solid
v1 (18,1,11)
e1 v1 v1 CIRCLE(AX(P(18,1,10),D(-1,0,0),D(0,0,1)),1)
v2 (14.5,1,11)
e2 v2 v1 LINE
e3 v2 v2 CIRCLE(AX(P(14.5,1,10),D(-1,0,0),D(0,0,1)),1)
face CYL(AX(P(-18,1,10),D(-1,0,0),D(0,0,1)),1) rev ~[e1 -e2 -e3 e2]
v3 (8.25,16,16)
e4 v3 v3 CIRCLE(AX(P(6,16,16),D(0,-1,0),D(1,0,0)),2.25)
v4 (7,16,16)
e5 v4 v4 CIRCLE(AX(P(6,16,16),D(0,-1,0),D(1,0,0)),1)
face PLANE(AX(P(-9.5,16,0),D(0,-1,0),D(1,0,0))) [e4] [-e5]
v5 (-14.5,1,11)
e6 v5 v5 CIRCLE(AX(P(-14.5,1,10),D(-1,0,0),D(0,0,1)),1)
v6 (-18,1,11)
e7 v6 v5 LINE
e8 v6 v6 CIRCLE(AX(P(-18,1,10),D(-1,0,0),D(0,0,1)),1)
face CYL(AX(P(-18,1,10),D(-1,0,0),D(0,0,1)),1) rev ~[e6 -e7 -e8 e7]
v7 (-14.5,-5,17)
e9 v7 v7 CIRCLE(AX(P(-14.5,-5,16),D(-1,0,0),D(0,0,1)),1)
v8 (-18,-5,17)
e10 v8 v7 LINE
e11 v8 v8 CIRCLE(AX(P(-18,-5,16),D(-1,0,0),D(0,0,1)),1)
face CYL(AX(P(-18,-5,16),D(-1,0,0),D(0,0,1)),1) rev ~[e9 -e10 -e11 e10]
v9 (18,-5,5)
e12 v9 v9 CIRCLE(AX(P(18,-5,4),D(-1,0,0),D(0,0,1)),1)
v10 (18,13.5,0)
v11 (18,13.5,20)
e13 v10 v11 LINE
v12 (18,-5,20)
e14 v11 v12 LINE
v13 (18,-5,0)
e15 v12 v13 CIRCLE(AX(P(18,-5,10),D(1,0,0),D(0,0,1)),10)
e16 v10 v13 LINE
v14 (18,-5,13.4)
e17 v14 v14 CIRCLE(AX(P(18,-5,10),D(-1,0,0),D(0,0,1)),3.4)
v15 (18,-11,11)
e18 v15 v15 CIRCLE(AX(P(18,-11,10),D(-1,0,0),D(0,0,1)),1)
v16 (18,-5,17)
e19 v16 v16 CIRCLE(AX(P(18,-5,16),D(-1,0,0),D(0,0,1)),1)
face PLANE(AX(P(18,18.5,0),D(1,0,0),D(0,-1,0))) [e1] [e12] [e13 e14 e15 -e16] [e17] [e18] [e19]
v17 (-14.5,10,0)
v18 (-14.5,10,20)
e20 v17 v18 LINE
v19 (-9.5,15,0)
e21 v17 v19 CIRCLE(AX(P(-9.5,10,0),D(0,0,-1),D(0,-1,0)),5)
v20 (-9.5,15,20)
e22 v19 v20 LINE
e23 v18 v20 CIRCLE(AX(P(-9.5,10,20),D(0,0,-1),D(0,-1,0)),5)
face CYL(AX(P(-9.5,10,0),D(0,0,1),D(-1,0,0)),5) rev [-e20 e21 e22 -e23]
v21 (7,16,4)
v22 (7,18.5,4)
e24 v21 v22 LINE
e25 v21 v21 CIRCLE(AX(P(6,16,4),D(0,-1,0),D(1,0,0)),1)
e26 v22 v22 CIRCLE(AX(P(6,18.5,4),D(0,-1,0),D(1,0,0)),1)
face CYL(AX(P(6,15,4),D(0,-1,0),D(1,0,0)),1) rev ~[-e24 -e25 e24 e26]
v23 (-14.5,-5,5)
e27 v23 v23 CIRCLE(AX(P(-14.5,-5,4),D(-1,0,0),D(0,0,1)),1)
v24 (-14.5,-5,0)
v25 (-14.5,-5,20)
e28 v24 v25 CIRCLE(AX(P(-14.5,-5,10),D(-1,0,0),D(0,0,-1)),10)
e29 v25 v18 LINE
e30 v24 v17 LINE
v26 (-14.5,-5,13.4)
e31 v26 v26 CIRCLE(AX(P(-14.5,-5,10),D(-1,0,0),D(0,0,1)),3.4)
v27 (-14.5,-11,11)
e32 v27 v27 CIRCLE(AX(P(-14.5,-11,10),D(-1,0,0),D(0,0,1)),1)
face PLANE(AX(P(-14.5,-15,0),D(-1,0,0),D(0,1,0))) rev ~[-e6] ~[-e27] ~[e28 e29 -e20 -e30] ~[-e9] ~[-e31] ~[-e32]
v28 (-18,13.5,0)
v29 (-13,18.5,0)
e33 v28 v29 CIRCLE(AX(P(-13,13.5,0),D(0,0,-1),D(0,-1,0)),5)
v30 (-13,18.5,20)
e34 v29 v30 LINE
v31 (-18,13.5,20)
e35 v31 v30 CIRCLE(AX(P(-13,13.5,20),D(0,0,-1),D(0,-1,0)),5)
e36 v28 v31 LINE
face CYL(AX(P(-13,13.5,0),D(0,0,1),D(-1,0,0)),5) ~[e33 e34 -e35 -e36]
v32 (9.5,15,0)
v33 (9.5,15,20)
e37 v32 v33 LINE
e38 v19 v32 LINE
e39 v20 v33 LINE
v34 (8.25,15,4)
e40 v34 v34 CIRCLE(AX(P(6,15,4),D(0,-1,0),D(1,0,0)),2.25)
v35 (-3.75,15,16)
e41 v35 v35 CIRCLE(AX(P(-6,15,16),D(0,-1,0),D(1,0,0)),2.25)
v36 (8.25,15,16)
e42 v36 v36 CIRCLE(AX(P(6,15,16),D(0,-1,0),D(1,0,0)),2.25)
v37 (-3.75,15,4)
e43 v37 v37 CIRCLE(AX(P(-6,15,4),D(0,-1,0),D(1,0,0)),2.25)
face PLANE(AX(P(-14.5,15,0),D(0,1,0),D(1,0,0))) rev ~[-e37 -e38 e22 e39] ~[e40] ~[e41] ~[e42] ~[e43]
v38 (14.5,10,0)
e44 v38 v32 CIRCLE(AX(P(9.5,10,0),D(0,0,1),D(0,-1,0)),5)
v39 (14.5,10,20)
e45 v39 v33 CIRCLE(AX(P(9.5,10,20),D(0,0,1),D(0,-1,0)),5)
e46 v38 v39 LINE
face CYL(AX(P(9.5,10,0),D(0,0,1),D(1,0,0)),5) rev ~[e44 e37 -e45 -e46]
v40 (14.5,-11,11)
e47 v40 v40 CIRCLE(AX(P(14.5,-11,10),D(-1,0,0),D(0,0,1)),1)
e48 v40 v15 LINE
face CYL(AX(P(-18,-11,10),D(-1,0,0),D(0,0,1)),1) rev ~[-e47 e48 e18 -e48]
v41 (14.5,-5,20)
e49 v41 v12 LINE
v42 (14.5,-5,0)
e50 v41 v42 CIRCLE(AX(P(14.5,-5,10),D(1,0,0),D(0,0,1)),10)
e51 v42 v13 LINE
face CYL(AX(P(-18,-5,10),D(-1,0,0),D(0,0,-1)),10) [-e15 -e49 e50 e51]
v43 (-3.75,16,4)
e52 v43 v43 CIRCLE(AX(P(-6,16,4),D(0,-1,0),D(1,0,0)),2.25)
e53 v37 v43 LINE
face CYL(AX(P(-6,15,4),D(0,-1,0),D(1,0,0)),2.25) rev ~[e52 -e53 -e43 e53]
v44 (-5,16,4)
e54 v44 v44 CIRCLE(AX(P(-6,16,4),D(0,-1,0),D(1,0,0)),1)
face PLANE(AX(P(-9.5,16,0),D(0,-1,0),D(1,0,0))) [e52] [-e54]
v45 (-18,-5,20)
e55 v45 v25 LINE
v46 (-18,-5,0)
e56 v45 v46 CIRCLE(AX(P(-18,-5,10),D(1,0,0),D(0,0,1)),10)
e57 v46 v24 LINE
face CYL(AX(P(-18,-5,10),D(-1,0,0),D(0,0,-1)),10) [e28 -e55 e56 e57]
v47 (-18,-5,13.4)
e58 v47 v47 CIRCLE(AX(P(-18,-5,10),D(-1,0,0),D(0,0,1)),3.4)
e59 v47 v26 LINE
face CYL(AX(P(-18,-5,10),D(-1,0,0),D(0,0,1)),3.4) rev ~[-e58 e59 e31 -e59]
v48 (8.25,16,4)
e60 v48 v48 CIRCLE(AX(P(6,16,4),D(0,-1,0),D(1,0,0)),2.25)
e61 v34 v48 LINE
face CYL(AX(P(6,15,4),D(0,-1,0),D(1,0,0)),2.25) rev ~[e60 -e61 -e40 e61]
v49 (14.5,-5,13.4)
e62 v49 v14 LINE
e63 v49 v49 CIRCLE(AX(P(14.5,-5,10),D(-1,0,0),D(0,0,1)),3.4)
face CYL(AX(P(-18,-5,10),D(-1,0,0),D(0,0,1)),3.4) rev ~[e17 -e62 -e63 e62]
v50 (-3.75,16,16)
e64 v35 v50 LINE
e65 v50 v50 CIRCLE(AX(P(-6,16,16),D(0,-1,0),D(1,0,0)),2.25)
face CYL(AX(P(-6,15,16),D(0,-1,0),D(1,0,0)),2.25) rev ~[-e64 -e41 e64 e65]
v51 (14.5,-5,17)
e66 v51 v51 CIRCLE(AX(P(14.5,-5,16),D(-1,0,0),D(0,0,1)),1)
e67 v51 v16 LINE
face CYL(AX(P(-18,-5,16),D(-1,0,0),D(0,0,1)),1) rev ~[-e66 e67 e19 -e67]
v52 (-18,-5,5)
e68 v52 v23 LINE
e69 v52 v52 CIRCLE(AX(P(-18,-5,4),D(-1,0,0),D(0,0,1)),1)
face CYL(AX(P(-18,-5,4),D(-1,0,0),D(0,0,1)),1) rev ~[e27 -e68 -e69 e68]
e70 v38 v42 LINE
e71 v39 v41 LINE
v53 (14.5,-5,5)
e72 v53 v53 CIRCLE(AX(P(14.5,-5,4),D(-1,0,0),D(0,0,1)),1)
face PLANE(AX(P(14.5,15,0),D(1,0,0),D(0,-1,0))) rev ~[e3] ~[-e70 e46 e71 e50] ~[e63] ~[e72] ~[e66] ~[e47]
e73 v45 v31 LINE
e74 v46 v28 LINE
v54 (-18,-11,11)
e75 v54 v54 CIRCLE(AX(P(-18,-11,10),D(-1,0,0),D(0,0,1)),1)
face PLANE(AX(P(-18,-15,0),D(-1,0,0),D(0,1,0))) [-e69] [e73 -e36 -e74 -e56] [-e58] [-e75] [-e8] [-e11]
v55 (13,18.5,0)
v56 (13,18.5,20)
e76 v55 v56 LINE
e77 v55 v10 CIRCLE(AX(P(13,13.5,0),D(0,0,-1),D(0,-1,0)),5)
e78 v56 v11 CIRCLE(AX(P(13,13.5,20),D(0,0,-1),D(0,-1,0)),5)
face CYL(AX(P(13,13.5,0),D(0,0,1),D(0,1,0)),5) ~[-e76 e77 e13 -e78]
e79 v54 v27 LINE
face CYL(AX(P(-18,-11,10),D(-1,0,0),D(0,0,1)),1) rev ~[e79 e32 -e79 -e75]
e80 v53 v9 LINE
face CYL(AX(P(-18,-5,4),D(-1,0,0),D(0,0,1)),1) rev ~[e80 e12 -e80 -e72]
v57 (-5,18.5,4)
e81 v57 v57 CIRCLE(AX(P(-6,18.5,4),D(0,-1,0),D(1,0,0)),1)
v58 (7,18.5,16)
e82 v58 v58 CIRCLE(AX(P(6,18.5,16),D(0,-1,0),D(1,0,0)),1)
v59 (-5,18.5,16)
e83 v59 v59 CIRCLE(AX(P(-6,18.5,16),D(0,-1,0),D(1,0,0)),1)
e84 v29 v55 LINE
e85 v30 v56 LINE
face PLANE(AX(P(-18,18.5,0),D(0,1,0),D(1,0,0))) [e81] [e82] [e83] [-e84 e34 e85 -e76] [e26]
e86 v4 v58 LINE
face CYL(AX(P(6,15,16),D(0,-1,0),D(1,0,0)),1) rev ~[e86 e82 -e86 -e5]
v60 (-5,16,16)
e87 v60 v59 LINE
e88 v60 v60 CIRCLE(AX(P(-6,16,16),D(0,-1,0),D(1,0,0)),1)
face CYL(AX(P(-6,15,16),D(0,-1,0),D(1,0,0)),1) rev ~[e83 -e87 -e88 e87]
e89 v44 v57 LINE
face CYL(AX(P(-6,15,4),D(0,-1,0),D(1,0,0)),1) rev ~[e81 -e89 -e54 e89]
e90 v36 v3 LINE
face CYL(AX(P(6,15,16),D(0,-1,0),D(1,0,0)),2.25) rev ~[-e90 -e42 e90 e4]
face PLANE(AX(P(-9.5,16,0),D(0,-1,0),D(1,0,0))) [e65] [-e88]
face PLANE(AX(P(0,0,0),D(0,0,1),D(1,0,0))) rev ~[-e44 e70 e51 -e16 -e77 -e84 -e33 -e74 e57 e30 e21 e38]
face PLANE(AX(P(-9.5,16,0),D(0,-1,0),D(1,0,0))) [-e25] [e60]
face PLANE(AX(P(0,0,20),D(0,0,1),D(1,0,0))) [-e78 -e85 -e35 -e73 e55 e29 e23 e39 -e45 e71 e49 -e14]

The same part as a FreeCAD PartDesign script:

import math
import FreeCAD as App
import Part
import Sketcher

V = App.Vector
Q = App.Units.Quantity


def edges_at(feature, points):
    """Names of the edges that pass closest to the given points."""
    edges = feature.Shape.Edges
    near = lambda p: min(range(len(edges)), key=lambda i: edges[i].distToShape(Part.Vertex(*p))[0])
    return sorted({f"Edge{near(p) + 1}" for p in points})

doc = App.newDocument("Part")
body = doc.addObject("PartDesign::Body", "Body")

# Sketch on XY plane
sketch1 = doc.addObject("Sketcher::SketchObject", "Sketch")
body.addObject(sketch1)
sketch1.AttachmentSupport = (doc.XY_Plane, [""])
sketch1.MapMode = "FlatFace"
sketch1.addGeometry([
    Part.LineSegment(V(-18, -15, 0), V(-14.5, -15, 0)),  # 0
    Part.LineSegment(V(-14.5, -15, 0), V(-14.5, 15, 0)),  # 1
    Part.LineSegment(V(-14.5, 15, 0), V(14.5, 15, 0)),  # 2
    Part.LineSegment(V(14.5, 15, 0), V(14.5, -15, 0)),  # 3
    Part.LineSegment(V(14.5, -15, 0), V(18, -15, 0)),  # 4
    Part.LineSegment(V(18, -15, 0), V(18, 18.5, 0)),  # 5
    Part.LineSegment(V(18, 18.5, 0), V(-18, 18.5, 0)),  # 6
    Part.LineSegment(V(-18, 18.5, 0), V(-18, -15, 0)),  # 7
], False)
sketch1.addConstraint([
    Sketcher.Constraint("Coincident", 0, 2, 1, 1),
    Sketcher.Constraint("Coincident", 1, 2, 2, 1),
    Sketcher.Constraint("Coincident", 2, 2, 3, 1),
    Sketcher.Constraint("Coincident", 3, 2, 4, 1),
    Sketcher.Constraint("Coincident", 4, 2, 5, 1),
    Sketcher.Constraint("Coincident", 5, 2, 6, 1),
    Sketcher.Constraint("Coincident", 6, 2, 7, 1),
    Sketcher.Constraint("Coincident", 7, 2, 0, 1),
    Sketcher.Constraint("Horizontal", 0),
    Sketcher.Constraint("Vertical", 1),
    Sketcher.Constraint("Horizontal", 2),
    Sketcher.Constraint("Vertical", 3),
    Sketcher.Constraint("Horizontal", 4),
    Sketcher.Constraint("Vertical", 5),
    Sketcher.Constraint("Horizontal", 6),
    Sketcher.Constraint("Vertical", 7),
    Sketcher.Constraint("Symmetric", 0, 2, 2, 2, -1, 1),
    Sketcher.Constraint("Symmetric", 4, 2, 7, 2, -2),
    Sketcher.Constraint("DistanceX", 2, 1, 2, 2, Q("29 mm")),
    Sketcher.Constraint("DistanceX", 6, 2, 6, 1, Q("36 mm")),
    Sketcher.Constraint("DistanceY", 1, 1, 1, 2, Q("30 mm")),
    Sketcher.Constraint("DistanceY", 5, 1, 5, 2, Q("33.5 mm")),
])
pad1 = doc.addObject("PartDesign::Pad", "Pad")
body.addObject(pad1)
pad1.Profile = sketch1
pad1.Length = 20

# Sketch on YZ plane
sketch2 = doc.addObject("Sketcher::SketchObject", "Sketch001")
body.addObject(sketch2)
sketch2.AttachmentSupport = (doc.YZ_Plane, [""])
sketch2.MapMode = "FlatFace"
sketch2.AttachmentOffset = App.Placement(V(0, 0, -18), App.Rotation())
sketch2.addGeometry([
    Part.ArcOfCircle(Part.Circle(V(-5, 10, 0), V(0, 0, 1), 10), math.radians(90), math.radians(180)),  # 0
    Part.LineSegment(V(-15, 10, 0), V(-15, 20, 0)),  # 1
    Part.LineSegment(V(-15, 20, 0), V(-5, 20, 0)),  # 2
    Part.ArcOfCircle(Part.Circle(V(-5, 10, 0), V(0, 0, 1), 10), math.radians(180), math.radians(270)),  # 3
    Part.LineSegment(V(-5, 0, 0), V(-15, 0, 0)),  # 4
    Part.LineSegment(V(-15, 0, 0), V(-15, 10, 0)),  # 5
    Part.Circle(V(-5, 10, 0), V(0, 0, 1), 3.4),  # 6
    Part.Circle(V(-5, 4, 0), V(0, 0, 1), 1),  # 7
    Part.Circle(V(-5, 16, 0), V(0, 0, 1), 1),  # 8
    Part.Circle(V(1, 10, 0), V(0, 0, 1), 1),  # 9
    Part.Circle(V(-11, 10, 0), V(0, 0, 1), 1),  # 10
], False)
sketch2.addConstraint([
    Sketcher.Constraint("Tangent", 0, 2, 1, 1),
    Sketcher.Constraint("Coincident", 1, 2, 2, 1),
    Sketcher.Constraint("Tangent", 2, 2, 0, 1),
    Sketcher.Constraint("Tangent", 3, 2, 4, 1),
    Sketcher.Constraint("Coincident", 4, 2, 5, 1),
    Sketcher.Constraint("Tangent", 5, 2, 3, 1),
    Sketcher.Constraint("Vertical", 1),
    Sketcher.Constraint("Horizontal", 2),
    Sketcher.Constraint("Horizontal", 4),
    Sketcher.Constraint("Vertical", 5),
    Sketcher.Constraint("Coincident", 3, 3, 0, 3),
    Sketcher.Constraint("Coincident", 6, 3, 0, 3),
    Sketcher.Constraint("Equal", 0, 3),
    Sketcher.Constraint("Equal", 7, 8),
    Sketcher.Constraint("Equal", 8, 9),
    Sketcher.Constraint("Equal", 9, 10),
    Sketcher.Constraint("PointOnObject", 3, 2, -1),
    Sketcher.Constraint("Horizontal", 6, 3, 9, 3),
    Sketcher.Constraint("Horizontal", 9, 3, 10, 3),
    Sketcher.Constraint("Vertical", 6, 3, 7, 3),
    Sketcher.Constraint("Vertical", 7, 3, 8, 3),
    Sketcher.Constraint("Diameter", 7, Q("2 mm")),
    Sketcher.Constraint("Radius", 0, Q("10 mm")),
    Sketcher.Constraint("Diameter", 6, Q("6.8 mm")),
    Sketcher.Constraint("DistanceY", 7, 3, 8, 3, Q("12 mm")),
    Sketcher.Constraint("DistanceX", 0, 3, -1, 1, Q("5 mm")),
    Sketcher.Constraint("DistanceY", -1, 1, 7, 3, Q("4 mm")),
    Sketcher.Constraint("DistanceX", -1, 1, 9, 3, Q("1 mm")),
    Sketcher.Constraint("DistanceX", 10, 3, -1, 1, Q("11 mm")),
])
pocket1 = doc.addObject("PartDesign::Pocket", "Pocket")
body.addObject(pocket1)
pocket1.Profile = sketch2
pocket1.Type = "ThroughAll"
pocket1.Reversed = True
doc.recompute()

fillet = doc.addObject("PartDesign::Fillet", "Fillet")
body.addObject(fillet)
fillet.Base = (pocket1, edges_at(pocket1, [
    (-14.5, 15, 10),
    (14.5, 15, 10),
    (-18, 18.5, 10),
    (18, 18.5, 10),
]))
fillet.Radius = 5

# Sketch on XZ plane
sketch3 = doc.addObject("Sketcher::SketchObject", "Sketch002")
body.addObject(sketch3)
sketch3.AttachmentSupport = (doc.XZ_Plane, [""])
sketch3.MapMode = "FlatFace"
sketch3.AttachmentOffset = App.Placement(V(0, 0, -15), App.Rotation())
sketch3.addGeometry([
    Part.Circle(V(-6, 16, 0), V(0, 0, 1), 1),
    Part.Circle(V(6, 16, 0), V(0, 0, 1), 1),
    Part.Circle(V(-6, 4, 0), V(0, 0, 1), 1),
    Part.Circle(V(6, 4, 0), V(0, 0, 1), 1),
], False)
sketch3.addConstraint([
    Sketcher.Constraint("Equal", 0, 1),
    Sketcher.Constraint("Equal", 1, 2),
    Sketcher.Constraint("Equal", 2, 3),
    Sketcher.Constraint("Symmetric", 0, 3, 1, 3, -2),
    Sketcher.Constraint("Symmetric", 2, 3, 3, 3, -2),
    Sketcher.Constraint("Vertical", 0, 3, 2, 3),
    Sketcher.Constraint("Diameter", 0, Q("2 mm")),
    Sketcher.Constraint("DistanceX", 0, 3, 1, 3, Q("12 mm")),
    Sketcher.Constraint("DistanceY", 2, 3, 0, 3, Q("12 mm")),
    Sketcher.Constraint("DistanceY", -1, 1, 0, 3, Q("16 mm")),
])
pocket2 = doc.addObject("PartDesign::Pocket", "Pocket001")
body.addObject(pocket2)
pocket2.Profile = sketch3
pocket2.Type = "ThroughAll"

# Sketch on XZ plane
sketch4 = doc.addObject("Sketcher::SketchObject", "Sketch003")
body.addObject(sketch4)
sketch4.AttachmentSupport = (doc.XZ_Plane, [""])
sketch4.MapMode = "FlatFace"
sketch4.AttachmentOffset = App.Placement(V(0, 0, -15), App.Rotation())
sketch4.addGeometry([
    Part.Circle(V(-6, 16, 0), V(0, 0, 1), 2.2),
    Part.Circle(V(6, 16, 0), V(0, 0, 1), 2.2),
    Part.Circle(V(6, 4, 0), V(0, 0, 1), 2.2),
    Part.Circle(V(-6, 4, 0), V(0, 0, 1), 2.2),
], False)
sketch4.addConstraint([
    Sketcher.Constraint("Equal", 0, 1),
    Sketcher.Constraint("Equal", 1, 2),
    Sketcher.Constraint("Equal", 2, 3),
    Sketcher.Constraint("Symmetric", 0, 3, 1, 3, -2),
    Sketcher.Constraint("Symmetric", 2, 3, 3, 3, -2),
    Sketcher.Constraint("Vertical", 1, 3, 2, 3),
    Sketcher.Constraint("Diameter", 0, Q("4.5 mm")),
    Sketcher.Constraint("DistanceX", 0, 3, -1, 1, Q("6 mm")),
    Sketcher.Constraint("DistanceY", -1, 1, 0, 3, Q("16 mm")),
    Sketcher.Constraint("DistanceY", -1, 1, 2, 3, Q("4 mm")),
])
pocket3 = doc.addObject("PartDesign::Pocket", "Pocket002")
body.addObject(pocket3)
pocket3.Profile = sketch4
pocket3.Length = 1

doc.recompute()
